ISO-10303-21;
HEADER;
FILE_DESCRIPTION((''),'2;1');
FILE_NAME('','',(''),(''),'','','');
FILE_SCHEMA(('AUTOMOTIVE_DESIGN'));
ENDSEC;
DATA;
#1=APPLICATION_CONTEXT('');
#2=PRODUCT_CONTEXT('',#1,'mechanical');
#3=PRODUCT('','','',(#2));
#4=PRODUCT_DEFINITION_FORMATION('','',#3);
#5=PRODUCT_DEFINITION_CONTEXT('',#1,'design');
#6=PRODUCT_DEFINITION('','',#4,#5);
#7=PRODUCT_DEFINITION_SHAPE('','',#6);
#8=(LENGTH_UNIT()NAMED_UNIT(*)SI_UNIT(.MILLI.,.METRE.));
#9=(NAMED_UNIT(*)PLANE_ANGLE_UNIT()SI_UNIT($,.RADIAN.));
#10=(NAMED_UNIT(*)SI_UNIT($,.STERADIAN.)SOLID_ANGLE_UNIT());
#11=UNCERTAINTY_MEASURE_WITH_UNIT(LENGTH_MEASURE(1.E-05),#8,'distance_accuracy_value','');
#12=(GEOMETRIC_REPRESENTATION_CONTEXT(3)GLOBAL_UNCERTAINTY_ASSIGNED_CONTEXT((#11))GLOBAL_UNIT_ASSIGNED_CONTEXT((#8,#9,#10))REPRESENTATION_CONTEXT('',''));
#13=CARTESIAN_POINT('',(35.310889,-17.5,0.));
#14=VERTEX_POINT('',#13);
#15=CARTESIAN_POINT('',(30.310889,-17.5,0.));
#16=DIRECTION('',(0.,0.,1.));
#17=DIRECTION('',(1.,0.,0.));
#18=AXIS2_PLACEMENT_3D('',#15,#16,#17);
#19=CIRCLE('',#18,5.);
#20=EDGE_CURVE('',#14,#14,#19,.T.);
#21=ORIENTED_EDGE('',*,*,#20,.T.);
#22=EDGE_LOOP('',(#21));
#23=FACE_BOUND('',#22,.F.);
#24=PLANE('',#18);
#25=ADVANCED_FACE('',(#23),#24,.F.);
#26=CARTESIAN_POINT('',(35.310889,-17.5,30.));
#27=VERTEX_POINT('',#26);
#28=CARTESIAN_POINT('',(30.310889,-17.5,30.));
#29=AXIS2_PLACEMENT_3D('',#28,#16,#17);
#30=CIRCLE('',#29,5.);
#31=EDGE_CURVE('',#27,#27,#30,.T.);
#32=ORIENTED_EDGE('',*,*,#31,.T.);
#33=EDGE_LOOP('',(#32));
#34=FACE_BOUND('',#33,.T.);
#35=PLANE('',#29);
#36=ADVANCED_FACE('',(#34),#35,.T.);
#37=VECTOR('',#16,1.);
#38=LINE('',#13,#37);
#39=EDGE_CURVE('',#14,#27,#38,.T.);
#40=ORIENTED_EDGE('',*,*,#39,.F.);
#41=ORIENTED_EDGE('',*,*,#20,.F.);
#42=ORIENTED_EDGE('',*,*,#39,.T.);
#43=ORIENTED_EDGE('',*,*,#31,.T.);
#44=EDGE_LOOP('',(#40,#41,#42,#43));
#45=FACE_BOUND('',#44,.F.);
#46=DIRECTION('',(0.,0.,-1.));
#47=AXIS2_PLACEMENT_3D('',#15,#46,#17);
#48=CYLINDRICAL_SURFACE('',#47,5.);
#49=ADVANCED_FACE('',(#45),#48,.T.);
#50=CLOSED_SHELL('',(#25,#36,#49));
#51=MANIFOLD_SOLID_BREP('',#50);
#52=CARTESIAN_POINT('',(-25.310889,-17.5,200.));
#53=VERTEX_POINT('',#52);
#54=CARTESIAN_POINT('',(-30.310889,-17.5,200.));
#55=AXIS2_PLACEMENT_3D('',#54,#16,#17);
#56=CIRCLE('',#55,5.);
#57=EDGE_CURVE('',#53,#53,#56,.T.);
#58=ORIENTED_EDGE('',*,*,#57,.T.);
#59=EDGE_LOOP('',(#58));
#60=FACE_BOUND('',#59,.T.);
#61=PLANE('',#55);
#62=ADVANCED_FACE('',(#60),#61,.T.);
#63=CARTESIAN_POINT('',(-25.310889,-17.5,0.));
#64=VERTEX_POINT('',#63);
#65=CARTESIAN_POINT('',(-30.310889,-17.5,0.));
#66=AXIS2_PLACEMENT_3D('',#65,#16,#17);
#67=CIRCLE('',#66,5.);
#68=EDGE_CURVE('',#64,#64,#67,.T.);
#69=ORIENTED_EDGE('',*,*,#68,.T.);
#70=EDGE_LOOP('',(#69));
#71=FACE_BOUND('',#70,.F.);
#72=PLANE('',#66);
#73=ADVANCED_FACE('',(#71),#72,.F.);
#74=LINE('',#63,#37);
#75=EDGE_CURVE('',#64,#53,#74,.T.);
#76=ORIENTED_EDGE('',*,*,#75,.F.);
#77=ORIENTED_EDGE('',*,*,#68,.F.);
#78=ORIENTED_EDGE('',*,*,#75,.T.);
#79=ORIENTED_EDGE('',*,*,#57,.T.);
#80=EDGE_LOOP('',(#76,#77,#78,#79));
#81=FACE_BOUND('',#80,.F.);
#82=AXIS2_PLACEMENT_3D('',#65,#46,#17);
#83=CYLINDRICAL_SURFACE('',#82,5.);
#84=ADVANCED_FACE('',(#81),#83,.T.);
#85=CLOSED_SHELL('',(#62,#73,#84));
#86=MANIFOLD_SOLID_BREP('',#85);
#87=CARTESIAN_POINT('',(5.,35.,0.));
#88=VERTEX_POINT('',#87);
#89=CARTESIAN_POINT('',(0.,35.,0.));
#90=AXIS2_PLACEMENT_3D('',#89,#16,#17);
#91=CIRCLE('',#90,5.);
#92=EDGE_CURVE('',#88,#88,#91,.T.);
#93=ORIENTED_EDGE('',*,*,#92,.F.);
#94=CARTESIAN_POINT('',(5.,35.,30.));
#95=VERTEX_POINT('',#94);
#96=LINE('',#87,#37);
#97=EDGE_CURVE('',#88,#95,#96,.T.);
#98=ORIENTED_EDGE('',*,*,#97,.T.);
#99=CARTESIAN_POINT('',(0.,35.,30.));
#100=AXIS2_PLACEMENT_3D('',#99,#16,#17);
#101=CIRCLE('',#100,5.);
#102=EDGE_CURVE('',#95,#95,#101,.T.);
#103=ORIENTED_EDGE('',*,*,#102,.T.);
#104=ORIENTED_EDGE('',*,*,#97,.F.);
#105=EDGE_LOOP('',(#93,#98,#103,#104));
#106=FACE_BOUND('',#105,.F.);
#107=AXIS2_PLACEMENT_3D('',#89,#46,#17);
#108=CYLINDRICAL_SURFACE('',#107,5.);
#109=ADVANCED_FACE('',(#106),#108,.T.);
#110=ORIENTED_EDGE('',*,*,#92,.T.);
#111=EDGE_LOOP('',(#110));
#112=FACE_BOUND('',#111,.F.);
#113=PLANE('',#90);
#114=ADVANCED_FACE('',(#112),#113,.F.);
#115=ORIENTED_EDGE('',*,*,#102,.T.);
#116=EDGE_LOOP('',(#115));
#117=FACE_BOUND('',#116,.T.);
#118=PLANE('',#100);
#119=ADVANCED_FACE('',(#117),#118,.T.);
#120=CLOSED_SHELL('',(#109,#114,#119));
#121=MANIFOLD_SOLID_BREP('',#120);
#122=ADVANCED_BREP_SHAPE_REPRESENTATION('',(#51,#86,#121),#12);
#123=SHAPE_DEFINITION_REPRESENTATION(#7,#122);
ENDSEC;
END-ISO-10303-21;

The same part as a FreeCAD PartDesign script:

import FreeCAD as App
import Part
import Sketcher

doc = App.newDocument("Part")
body = doc.addObject("PartDesign::Body", "Body")

# Sketch on XY plane
sketch1 = doc.addObject("Sketcher::SketchObject", "Sketch")
body.addObject(sketch1)
sketch1.AttachmentSupport = (doc.XY_Plane, [""])
sketch1.MapMode = "FlatFace"
sketch1.addGeometry(Part.Circle(App.Vector(0, 35, 0), App.Vector(0, 0, 1), 5), False)
sketch1.addConstraint([
    Sketcher.Constraint("PointOnObject", 0, 3, -2),
    Sketcher.Constraint("Diameter", 0, 10.0),
    Sketcher.Constraint("DistanceY", -1, 1, 0, 3, 35.0),
])
pad1 = doc.addObject("PartDesign::Pad", "Pad")
body.addObject(pad1)
pad1.Profile = sketch1
pad1.Length = 30
body2 = doc.addObject("PartDesign::Body", "Body001")

# Sketch on XY plane
sketch2 = doc.addObject("Sketcher::SketchObject", "Sketch001")
body2.addObject(sketch2)
sketch2.AttachmentSupport = (doc.getObject("XY_Plane001"), [""])
sketch2.MapMode = "FlatFace"
sketch2.addGeometry(Part.Circle(App.Vector(-30, -18, 0), App.Vector(0, 0, 1), 5), False)
sketch2.addConstraint([
    Sketcher.Constraint("Diameter", 0, 10.0),
    Sketcher.Constraint("DistanceY", 0, 3, -1, 1, 17.5),
    Sketcher.Constraint("DistanceX", 0, 3, -1, 1, 30.310889),
])
pad2 = doc.addObject("PartDesign::Pad", "Pad001")
body2.addObject(pad2)
pad2.Profile = sketch2
pad2.Length = 200
body3 = doc.addObject("PartDesign::Body", "Body002")

# Sketch on XY plane
sketch3 = doc.addObject("Sketcher::SketchObject", "Sketch002")
body3.addObject(sketch3)
sketch3.AttachmentSupport = (doc.getObject("XY_Plane002"), [""])
sketch3.MapMode = "FlatFace"
sketch3.addGeometry(Part.Circle(App.Vector(30, -18, 0), App.Vector(0, 0, 1), 5), False)
sketch3.addConstraint([
    Sketcher.Constraint("Diameter", 0, 10.0),
    Sketcher.Constraint("DistanceY", 0, 3, -1, 1, 17.5),
    Sketcher.Constraint("DistanceX", -1, 1, 0, 3, 30.310889),
])
pad3 = doc.addObject("PartDesign::Pad", "Pad002")
body3.addObject(pad3)
pad3.Profile = sketch3
pad3.Length = 30

doc.recompute()
